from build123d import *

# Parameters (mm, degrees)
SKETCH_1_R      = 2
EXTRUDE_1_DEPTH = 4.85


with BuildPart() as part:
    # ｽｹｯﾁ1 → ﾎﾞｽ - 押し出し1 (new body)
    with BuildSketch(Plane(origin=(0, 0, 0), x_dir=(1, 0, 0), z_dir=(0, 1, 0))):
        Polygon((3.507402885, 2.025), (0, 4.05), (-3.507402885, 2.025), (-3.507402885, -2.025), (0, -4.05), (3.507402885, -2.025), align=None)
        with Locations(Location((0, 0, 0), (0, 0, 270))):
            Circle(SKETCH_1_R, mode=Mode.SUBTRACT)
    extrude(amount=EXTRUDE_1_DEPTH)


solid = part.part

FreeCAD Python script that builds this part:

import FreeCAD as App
import Part
import Sketcher
from FreeCAD import Vector
Q = App.Units.Quantity


def add_polygon(sketch, points):
    """Adds a closed chain of lines whose ends are joined by coincident constraints."""
    first, n = sketch.GeometryCount, len(points)
    for a, b in zip(points, points[1:] + points[:1]):
        sketch.addGeometry(Part.LineSegment(App.Vector(*a, 0), App.Vector(*b, 0)), False)
    for i in range(n):
        sketch.addConstraint(Sketcher.Constraint("Coincident", first + i, 2, first + (i + 1) % n, 1))

doc = App.newDocument("Part")
body = doc.addObject("PartDesign::Body", "Body")

sketch1 = body.newObject("Sketcher::SketchObject", "Sketch")
sketch1.AttachmentSupport = (doc.getObject("XZ_Plane"), [""])
sketch1.MapMode = "FlatFace"
add_polygon(sketch1, [(3.5, -2), (0, -4), (-3.5, -2), (-3.5, 2), (0, 4), (3.5, 2)])
sketch1.addGeometry(Part.Circle(Vector(0, 0, 0), Vector(0, 0, 1), 2), False)
sketch1.addConstraint([
    Sketcher.Constraint("Vertical", 2),
    Sketcher.Constraint("Vertical", 5),
    Sketcher.Constraint("Coincident", 6, 3, -1, 1),
    Sketcher.Constraint("Symmetric", 0, 2, 3, 2, -1, 1),
    Sketcher.Constraint("Symmetric", 1, 2, 4, 2, -1, 1),
    Sketcher.Constraint("PointOnObject", 0, 2, -2),
    Sketcher.Constraint("Parallel", 0, 3),
    Sketcher.Constraint("Horizontal", 2, 2, 4, 2),
    Sketcher.Constraint("Diameter", 6, 4.0),
    Sketcher.Constraint("Angle", 0, Q("-150 deg")),
    Sketcher.Constraint("DistanceY", 2, 1, 2, 2, 4.05),
    Sketcher.Constraint("DistanceY", 0, 2, 3, 2, 8.1),
])
pad1 = body.newObject("PartDesign::Pad", "Pad")
pad1.Profile = sketch1
pad1.Length = 4.85
pad1.Reversed = True

doc.recompute()
